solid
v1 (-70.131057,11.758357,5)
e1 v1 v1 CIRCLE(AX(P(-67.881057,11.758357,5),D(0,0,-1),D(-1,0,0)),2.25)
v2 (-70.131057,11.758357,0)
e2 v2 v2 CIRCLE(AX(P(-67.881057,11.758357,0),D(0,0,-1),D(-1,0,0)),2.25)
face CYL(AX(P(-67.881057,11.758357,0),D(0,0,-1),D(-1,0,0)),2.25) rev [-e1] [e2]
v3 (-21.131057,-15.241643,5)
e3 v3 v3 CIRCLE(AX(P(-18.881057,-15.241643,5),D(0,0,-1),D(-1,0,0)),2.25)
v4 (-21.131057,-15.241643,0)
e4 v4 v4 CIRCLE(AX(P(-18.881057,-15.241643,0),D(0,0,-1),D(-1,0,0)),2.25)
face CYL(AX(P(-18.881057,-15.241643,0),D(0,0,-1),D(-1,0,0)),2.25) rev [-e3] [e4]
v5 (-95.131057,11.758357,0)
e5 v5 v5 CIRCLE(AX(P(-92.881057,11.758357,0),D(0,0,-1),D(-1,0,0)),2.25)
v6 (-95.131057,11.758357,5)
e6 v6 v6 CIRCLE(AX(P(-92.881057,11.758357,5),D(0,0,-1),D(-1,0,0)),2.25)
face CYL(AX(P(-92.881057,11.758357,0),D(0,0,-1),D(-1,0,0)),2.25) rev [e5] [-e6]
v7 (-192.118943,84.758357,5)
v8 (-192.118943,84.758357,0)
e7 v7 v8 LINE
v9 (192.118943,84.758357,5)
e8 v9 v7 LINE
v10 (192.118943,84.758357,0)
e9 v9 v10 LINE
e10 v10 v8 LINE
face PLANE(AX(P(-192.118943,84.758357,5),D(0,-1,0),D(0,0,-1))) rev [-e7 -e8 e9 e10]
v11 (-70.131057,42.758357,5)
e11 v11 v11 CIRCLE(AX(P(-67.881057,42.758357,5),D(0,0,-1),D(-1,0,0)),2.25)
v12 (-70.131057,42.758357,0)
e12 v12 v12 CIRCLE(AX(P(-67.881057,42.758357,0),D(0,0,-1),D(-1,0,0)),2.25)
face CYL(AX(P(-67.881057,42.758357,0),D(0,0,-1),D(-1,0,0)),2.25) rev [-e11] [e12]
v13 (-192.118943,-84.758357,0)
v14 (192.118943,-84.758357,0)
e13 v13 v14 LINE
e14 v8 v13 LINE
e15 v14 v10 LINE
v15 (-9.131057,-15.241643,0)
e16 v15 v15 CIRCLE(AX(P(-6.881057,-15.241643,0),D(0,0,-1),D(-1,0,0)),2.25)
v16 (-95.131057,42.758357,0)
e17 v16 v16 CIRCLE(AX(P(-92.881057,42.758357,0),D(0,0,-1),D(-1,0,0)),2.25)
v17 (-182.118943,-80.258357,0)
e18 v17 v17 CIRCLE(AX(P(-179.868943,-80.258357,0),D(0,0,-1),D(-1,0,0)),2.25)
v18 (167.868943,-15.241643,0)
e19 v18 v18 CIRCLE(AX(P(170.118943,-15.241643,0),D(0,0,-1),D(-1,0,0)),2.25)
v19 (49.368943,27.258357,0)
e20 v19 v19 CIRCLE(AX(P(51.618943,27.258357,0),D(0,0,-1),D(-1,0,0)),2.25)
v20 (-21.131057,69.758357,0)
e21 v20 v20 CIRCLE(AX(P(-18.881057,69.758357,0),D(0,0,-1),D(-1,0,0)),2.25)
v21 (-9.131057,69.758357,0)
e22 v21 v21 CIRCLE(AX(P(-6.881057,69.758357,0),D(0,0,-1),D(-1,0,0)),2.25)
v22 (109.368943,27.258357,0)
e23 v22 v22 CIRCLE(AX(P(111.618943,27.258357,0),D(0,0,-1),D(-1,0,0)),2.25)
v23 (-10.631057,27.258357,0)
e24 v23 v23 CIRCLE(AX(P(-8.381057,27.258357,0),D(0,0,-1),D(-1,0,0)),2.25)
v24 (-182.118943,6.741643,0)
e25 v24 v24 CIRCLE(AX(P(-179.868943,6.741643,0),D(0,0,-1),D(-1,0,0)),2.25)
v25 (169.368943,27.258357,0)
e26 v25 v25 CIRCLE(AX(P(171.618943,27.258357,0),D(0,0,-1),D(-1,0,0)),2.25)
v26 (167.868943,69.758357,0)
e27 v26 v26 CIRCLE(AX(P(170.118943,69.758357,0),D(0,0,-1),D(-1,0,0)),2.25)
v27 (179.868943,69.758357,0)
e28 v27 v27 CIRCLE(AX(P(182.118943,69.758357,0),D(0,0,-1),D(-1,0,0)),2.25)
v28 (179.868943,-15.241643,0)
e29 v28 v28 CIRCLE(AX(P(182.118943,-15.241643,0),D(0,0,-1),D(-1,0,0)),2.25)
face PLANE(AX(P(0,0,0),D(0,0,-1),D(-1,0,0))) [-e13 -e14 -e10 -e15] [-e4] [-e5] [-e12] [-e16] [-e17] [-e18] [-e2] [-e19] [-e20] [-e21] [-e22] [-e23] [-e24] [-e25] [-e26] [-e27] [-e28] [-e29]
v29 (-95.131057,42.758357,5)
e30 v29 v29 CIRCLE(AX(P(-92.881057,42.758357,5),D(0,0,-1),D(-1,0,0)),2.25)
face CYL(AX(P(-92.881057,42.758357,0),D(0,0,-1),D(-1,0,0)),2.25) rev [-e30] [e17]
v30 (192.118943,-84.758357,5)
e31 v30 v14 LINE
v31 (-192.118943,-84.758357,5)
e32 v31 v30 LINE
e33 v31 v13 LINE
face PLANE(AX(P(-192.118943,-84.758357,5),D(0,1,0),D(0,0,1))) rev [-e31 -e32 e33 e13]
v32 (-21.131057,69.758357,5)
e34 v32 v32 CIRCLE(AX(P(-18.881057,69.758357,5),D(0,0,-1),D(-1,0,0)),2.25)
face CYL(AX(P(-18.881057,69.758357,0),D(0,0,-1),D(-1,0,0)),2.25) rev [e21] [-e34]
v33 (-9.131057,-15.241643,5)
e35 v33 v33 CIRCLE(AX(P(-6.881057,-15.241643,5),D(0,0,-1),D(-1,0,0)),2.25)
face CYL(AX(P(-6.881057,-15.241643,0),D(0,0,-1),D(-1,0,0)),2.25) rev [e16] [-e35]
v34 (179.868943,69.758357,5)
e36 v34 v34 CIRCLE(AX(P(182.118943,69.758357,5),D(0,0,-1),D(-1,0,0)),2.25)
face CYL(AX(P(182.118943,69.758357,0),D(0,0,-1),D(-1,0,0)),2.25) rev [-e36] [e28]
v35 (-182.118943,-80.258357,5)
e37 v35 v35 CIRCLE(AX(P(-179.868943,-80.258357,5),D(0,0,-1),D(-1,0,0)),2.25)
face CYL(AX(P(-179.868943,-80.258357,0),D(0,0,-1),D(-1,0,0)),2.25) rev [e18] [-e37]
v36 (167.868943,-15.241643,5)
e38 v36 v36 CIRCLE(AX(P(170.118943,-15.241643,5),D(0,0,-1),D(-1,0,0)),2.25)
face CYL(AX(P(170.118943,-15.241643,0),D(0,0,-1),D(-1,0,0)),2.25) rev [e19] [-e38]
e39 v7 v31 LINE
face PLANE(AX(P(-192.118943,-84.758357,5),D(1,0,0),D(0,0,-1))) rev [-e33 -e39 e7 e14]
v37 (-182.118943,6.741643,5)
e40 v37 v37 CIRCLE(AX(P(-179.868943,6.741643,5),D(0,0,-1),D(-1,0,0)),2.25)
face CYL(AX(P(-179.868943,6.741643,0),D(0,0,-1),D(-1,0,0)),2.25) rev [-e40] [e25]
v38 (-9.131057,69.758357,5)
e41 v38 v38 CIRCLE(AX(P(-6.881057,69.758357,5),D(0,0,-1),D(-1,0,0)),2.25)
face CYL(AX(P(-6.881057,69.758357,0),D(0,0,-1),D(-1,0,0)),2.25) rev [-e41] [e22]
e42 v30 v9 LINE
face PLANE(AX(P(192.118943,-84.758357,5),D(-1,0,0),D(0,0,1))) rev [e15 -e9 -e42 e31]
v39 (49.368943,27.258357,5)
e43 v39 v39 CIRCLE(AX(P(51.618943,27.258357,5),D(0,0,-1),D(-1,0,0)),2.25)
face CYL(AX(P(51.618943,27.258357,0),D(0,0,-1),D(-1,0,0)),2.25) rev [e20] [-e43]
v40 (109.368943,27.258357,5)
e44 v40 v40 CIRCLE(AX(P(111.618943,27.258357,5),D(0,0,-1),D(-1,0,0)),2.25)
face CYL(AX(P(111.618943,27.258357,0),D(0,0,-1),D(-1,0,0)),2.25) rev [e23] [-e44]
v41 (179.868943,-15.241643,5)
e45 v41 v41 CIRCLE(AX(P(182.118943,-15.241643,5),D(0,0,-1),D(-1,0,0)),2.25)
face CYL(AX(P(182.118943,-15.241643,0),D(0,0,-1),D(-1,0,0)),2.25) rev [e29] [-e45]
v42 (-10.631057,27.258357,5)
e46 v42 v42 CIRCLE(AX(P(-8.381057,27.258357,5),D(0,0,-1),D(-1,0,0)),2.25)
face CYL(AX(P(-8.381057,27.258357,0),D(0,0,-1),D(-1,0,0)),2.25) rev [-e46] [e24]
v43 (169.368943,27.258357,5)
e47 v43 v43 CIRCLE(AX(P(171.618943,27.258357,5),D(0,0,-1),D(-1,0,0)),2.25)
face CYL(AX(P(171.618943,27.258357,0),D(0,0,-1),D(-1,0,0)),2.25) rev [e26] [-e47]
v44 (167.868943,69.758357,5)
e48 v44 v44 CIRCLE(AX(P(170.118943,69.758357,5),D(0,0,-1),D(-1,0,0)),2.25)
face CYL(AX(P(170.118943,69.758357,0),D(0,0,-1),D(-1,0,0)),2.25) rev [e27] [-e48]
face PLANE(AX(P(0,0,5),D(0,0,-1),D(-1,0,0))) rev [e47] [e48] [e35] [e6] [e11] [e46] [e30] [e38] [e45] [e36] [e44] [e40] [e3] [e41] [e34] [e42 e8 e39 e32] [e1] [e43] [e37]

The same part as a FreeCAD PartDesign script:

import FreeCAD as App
import Part
import Sketcher

V = App.Vector

doc = App.newDocument("Part")
body = doc.addObject("PartDesign::Body", "Body")

sketch1 = body.newObject("Sketcher::SketchObject", "Sketch")
sketch1.AttachmentSupport = (doc.getObject("XY_Plane"), [""])
sketch1.MapMode = "FlatFace"
sketch1.addGeometry([
    Part.LineSegment(V(-192, 85, 0), V(-192, -85, 0)),
    Part.LineSegment(V(-192, -85, 0), V(192, -85, 0)),
    Part.LineSegment(V(192, -85, 0), V(192, 85, 0)),
    Part.LineSegment(V(192, 85, 0), V(-192, 85, 0)),
], False)
sketch1.addConstraint([
    Sketcher.Constraint("Coincident", 0, 2, 1, 1),
    Sketcher.Constraint("Coincident", 1, 2, 2, 1),
    Sketcher.Constraint("Coincident", 2, 2, 3, 1),
    Sketcher.Constraint("Coincident", 3, 2, 0, 1),
    Sketcher.Constraint("Vertical", 0),
    Sketcher.Constraint("Horizontal", 1),
    Sketcher.Constraint("Vertical", 2),
    Sketcher.Constraint("Horizontal", 3),
    Sketcher.Constraint("Symmetric", 0, 2, 2, 2, -1, 1),
    Sketcher.Constraint("DistanceX", 1, 1, 1, 2, 384.237887),
    Sketcher.Constraint("DistanceY", 0, 2, 0, 1, 169.516715),
])
pad1 = body.newObject("PartDesign::Pad", "Pad")
pad1.Profile = sketch1
pad1.Length = 5

sketch2 = body.newObject("Sketcher::SketchObject", "Sketch001")
sketch2.AttachmentSupport = (doc.getObject("XY_Plane"), [""])
sketch2.MapMode = "FlatFace"
sketch2.addGeometry([
    Part.Circle(V(-92.9, 42.8, 0), V(0, 0, 1), 2.2),
    Part.Circle(V(-92.9, 11.8, 0), V(0, 0, 1), 2.2),
    Part.Circle(V(-67.9, 11.8, 0), V(0, 0, 1), 2.2),
    Part.Circle(V(-67.9, 42.8, 0), V(0, 0, 1), 2.2),
    Part.Circle(V(-18.9, 69.8, 0), V(0, 0, 1), 2.2),
    Part.Circle(V(-6.9, 69.8, 0), V(0, 0, 1), 2.2),
    Part.Circle(V(-8.4, 27.3, 0), V(0, 0, 1), 2.2),
    Part.Circle(V(-18.9, -15.2, 0), V(0, 0, 1), 2.2),
    Part.Circle(V(-6.9, -15.2, 0), V(0, 0, 1), 2.2),
    Part.Circle(V(51.6, 27.3, 0), V(0, 0, 1), 2.2),
    Part.Circle(V(111.6, 27.3, 0), V(0, 0, 1), 2.2),
    Part.Circle(V(171.6, 27.3, 0), V(0, 0, 1), 2.2),
    Part.Circle(V(170.1, -15.2, 0), V(0, 0, 1), 2.2),
    Part.Circle(V(182.1, -15.2, 0), V(0, 0, 1), 2.2),
    Part.Circle(V(170.1, 69.8, 0), V(0, 0, 1), 2.2),
    Part.Circle(V(182.1, 69.8, 0), V(0, 0, 1), 2.2),
], False)
sketch2.addConstraint([
    Sketcher.Constraint("Equal", 0, 1),
    Sketcher.Constraint("Equal", 1, 2),
    Sketcher.Constraint("Equal", 2, 3),
    Sketcher.Constraint("Equal", 3, 4),
    Sketcher.Constraint("Equal", 4, 5),
    Sketcher.Constraint("Equal", 5, 6),
    Sketcher.Constraint("Equal", 6, 7),
    Sketcher.Constraint("Equal", 7, 8),
    Sketcher.Constraint("Equal", 8, 9),
    Sketcher.Constraint("Equal", 9, 10),
    Sketcher.Constraint("Equal", 10, 11),
    Sketcher.Constraint("Equal", 11, 12),
    Sketcher.Constraint("Equal", 12, 13),
    Sketcher.Constraint("Equal", 13, 14),
    Sketcher.Constraint("Equal", 14, 15),
    Sketcher.Constraint("Horizontal", 1, 3, 2, 3),
    Sketcher.Constraint("Horizontal", 0, 3, 3, 3),
    Sketcher.Constraint("Horizontal", 4, 3, 5, 3),
    Sketcher.Constraint("Horizontal", 7, 3, 8, 3),
    Sketcher.Constraint("Horizontal", 6, 3, 9, 3),
    Sketcher.Constraint("Horizontal", 9, 3, 10, 3),
    Sketcher.Constraint("Horizontal", 10, 3, 11, 3),
    Sketcher.Constraint("Horizontal", 8, 3, 12, 3),
    Sketcher.Constraint("Horizontal", 12, 3, 13, 3),
    Sketcher.Constraint("Horizontal", 5, 3, 14, 3),
    Sketcher.Constraint("Horizontal", 14, 3, 15, 3),
    Sketcher.Constraint("Vertical", 0, 3, 1, 3),
    Sketcher.Constraint("Vertical", 2, 3, 3, 3),
    Sketcher.Constraint("Vertical", 4, 3, 7, 3),
    Sketcher.Constraint("Vertical", 5, 3, 8, 3),
    Sketcher.Constraint("Vertical", 12, 3, 14, 3),
    Sketcher.Constraint("Vertical", 13, 3, 15, 3),
    Sketcher.Constraint("Diameter", 0, 4.5),
    Sketcher.Constraint("DistanceY", 1, 3, 0, 3, 31.0),
    Sketcher.Constraint("DistanceX", 1, 3, 2, 3, 25.0),
    Sketcher.Constraint("DistanceX", 3, 3, 4, 3, 49.0),
    Sketcher.Constraint("DistanceY", 3, 3, 4, 3, 27.0),
    Sketcher.Constraint("DistanceX", 4, 3, 5, 3, 12.0),
    Sketcher.Constraint("DistanceY", 7, 3, 2, 3, 27.0),
    Sketcher.Constraint("DistanceX", 6, 3, 9, 3, 60.0),
    Sketcher.Constraint("DistanceX", 9, 3, 10, 3, 60.0),
    Sketcher.Constraint("DistanceX", 10, 3, 11, 3, 60.0),
    Sketcher.Constraint("DistanceX", 8, 3, 12, 3, 177.0),
    Sketcher.Constraint("DistanceX", 12, 3, 13, 3, 12.0),
    Sketcher.Constraint("DistanceX", 6, 3, 5, 3, 1.5),
    Sketcher.Constraint("DistanceY", 6, 3, 5, 3, 42.5),
    Sketcher.Constraint("DistanceX", 0, 3, -1, 1, 92.881057),
    Sketcher.Constraint("DistanceY", -1, 1, 0, 3, 42.758357),
])
doc.recompute()
hole = body.newObject("PartDesign::Hole", "Hole")
hole.Profile = sketch2
hole.ThreadType = "None"
hole.Diameter = 4.5
hole.DepthType = "ThroughAll"
hole.Reversed = True

sketch3 = body.newObject("Sketcher::SketchObject", "Sketch002")
sketch3.AttachmentSupport = (doc.getObject("XY_Plane"), [""])
sketch3.MapMode = "FlatFace"
sketch3.addGeometry([
    Part.Circle(V(-179.9, 6.7, 0), V(0, 0, 1), 2.2),
    Part.Circle(V(-179.9, -80.3, 0), V(0, 0, 1), 2.2),
], False)
sketch3.addConstraint([
    Sketcher.Constraint("Equal", 0, 1),
    Sketcher.Constraint("Vertical", 0, 3, 1, 3),
    Sketcher.Constraint("Diameter", 0, 4.5),
    Sketcher.Constraint("DistanceY", 1, 3, 0, 3, 87.0),
    Sketcher.Constraint("DistanceX", 0, 3, -1, 1, 179.868943),
    Sketcher.Constraint("DistanceY", -1, 1, 0, 3, 6.741643),
])
doc.recompute()
hole2 = body.newObject("PartDesign::Hole", "Hole001")
hole2.Profile = sketch3
hole2.ThreadType = "None"
hole2.Diameter = 4.5
hole2.DepthType = "ThroughAll"
hole2.Reversed = True

doc.recompute()
